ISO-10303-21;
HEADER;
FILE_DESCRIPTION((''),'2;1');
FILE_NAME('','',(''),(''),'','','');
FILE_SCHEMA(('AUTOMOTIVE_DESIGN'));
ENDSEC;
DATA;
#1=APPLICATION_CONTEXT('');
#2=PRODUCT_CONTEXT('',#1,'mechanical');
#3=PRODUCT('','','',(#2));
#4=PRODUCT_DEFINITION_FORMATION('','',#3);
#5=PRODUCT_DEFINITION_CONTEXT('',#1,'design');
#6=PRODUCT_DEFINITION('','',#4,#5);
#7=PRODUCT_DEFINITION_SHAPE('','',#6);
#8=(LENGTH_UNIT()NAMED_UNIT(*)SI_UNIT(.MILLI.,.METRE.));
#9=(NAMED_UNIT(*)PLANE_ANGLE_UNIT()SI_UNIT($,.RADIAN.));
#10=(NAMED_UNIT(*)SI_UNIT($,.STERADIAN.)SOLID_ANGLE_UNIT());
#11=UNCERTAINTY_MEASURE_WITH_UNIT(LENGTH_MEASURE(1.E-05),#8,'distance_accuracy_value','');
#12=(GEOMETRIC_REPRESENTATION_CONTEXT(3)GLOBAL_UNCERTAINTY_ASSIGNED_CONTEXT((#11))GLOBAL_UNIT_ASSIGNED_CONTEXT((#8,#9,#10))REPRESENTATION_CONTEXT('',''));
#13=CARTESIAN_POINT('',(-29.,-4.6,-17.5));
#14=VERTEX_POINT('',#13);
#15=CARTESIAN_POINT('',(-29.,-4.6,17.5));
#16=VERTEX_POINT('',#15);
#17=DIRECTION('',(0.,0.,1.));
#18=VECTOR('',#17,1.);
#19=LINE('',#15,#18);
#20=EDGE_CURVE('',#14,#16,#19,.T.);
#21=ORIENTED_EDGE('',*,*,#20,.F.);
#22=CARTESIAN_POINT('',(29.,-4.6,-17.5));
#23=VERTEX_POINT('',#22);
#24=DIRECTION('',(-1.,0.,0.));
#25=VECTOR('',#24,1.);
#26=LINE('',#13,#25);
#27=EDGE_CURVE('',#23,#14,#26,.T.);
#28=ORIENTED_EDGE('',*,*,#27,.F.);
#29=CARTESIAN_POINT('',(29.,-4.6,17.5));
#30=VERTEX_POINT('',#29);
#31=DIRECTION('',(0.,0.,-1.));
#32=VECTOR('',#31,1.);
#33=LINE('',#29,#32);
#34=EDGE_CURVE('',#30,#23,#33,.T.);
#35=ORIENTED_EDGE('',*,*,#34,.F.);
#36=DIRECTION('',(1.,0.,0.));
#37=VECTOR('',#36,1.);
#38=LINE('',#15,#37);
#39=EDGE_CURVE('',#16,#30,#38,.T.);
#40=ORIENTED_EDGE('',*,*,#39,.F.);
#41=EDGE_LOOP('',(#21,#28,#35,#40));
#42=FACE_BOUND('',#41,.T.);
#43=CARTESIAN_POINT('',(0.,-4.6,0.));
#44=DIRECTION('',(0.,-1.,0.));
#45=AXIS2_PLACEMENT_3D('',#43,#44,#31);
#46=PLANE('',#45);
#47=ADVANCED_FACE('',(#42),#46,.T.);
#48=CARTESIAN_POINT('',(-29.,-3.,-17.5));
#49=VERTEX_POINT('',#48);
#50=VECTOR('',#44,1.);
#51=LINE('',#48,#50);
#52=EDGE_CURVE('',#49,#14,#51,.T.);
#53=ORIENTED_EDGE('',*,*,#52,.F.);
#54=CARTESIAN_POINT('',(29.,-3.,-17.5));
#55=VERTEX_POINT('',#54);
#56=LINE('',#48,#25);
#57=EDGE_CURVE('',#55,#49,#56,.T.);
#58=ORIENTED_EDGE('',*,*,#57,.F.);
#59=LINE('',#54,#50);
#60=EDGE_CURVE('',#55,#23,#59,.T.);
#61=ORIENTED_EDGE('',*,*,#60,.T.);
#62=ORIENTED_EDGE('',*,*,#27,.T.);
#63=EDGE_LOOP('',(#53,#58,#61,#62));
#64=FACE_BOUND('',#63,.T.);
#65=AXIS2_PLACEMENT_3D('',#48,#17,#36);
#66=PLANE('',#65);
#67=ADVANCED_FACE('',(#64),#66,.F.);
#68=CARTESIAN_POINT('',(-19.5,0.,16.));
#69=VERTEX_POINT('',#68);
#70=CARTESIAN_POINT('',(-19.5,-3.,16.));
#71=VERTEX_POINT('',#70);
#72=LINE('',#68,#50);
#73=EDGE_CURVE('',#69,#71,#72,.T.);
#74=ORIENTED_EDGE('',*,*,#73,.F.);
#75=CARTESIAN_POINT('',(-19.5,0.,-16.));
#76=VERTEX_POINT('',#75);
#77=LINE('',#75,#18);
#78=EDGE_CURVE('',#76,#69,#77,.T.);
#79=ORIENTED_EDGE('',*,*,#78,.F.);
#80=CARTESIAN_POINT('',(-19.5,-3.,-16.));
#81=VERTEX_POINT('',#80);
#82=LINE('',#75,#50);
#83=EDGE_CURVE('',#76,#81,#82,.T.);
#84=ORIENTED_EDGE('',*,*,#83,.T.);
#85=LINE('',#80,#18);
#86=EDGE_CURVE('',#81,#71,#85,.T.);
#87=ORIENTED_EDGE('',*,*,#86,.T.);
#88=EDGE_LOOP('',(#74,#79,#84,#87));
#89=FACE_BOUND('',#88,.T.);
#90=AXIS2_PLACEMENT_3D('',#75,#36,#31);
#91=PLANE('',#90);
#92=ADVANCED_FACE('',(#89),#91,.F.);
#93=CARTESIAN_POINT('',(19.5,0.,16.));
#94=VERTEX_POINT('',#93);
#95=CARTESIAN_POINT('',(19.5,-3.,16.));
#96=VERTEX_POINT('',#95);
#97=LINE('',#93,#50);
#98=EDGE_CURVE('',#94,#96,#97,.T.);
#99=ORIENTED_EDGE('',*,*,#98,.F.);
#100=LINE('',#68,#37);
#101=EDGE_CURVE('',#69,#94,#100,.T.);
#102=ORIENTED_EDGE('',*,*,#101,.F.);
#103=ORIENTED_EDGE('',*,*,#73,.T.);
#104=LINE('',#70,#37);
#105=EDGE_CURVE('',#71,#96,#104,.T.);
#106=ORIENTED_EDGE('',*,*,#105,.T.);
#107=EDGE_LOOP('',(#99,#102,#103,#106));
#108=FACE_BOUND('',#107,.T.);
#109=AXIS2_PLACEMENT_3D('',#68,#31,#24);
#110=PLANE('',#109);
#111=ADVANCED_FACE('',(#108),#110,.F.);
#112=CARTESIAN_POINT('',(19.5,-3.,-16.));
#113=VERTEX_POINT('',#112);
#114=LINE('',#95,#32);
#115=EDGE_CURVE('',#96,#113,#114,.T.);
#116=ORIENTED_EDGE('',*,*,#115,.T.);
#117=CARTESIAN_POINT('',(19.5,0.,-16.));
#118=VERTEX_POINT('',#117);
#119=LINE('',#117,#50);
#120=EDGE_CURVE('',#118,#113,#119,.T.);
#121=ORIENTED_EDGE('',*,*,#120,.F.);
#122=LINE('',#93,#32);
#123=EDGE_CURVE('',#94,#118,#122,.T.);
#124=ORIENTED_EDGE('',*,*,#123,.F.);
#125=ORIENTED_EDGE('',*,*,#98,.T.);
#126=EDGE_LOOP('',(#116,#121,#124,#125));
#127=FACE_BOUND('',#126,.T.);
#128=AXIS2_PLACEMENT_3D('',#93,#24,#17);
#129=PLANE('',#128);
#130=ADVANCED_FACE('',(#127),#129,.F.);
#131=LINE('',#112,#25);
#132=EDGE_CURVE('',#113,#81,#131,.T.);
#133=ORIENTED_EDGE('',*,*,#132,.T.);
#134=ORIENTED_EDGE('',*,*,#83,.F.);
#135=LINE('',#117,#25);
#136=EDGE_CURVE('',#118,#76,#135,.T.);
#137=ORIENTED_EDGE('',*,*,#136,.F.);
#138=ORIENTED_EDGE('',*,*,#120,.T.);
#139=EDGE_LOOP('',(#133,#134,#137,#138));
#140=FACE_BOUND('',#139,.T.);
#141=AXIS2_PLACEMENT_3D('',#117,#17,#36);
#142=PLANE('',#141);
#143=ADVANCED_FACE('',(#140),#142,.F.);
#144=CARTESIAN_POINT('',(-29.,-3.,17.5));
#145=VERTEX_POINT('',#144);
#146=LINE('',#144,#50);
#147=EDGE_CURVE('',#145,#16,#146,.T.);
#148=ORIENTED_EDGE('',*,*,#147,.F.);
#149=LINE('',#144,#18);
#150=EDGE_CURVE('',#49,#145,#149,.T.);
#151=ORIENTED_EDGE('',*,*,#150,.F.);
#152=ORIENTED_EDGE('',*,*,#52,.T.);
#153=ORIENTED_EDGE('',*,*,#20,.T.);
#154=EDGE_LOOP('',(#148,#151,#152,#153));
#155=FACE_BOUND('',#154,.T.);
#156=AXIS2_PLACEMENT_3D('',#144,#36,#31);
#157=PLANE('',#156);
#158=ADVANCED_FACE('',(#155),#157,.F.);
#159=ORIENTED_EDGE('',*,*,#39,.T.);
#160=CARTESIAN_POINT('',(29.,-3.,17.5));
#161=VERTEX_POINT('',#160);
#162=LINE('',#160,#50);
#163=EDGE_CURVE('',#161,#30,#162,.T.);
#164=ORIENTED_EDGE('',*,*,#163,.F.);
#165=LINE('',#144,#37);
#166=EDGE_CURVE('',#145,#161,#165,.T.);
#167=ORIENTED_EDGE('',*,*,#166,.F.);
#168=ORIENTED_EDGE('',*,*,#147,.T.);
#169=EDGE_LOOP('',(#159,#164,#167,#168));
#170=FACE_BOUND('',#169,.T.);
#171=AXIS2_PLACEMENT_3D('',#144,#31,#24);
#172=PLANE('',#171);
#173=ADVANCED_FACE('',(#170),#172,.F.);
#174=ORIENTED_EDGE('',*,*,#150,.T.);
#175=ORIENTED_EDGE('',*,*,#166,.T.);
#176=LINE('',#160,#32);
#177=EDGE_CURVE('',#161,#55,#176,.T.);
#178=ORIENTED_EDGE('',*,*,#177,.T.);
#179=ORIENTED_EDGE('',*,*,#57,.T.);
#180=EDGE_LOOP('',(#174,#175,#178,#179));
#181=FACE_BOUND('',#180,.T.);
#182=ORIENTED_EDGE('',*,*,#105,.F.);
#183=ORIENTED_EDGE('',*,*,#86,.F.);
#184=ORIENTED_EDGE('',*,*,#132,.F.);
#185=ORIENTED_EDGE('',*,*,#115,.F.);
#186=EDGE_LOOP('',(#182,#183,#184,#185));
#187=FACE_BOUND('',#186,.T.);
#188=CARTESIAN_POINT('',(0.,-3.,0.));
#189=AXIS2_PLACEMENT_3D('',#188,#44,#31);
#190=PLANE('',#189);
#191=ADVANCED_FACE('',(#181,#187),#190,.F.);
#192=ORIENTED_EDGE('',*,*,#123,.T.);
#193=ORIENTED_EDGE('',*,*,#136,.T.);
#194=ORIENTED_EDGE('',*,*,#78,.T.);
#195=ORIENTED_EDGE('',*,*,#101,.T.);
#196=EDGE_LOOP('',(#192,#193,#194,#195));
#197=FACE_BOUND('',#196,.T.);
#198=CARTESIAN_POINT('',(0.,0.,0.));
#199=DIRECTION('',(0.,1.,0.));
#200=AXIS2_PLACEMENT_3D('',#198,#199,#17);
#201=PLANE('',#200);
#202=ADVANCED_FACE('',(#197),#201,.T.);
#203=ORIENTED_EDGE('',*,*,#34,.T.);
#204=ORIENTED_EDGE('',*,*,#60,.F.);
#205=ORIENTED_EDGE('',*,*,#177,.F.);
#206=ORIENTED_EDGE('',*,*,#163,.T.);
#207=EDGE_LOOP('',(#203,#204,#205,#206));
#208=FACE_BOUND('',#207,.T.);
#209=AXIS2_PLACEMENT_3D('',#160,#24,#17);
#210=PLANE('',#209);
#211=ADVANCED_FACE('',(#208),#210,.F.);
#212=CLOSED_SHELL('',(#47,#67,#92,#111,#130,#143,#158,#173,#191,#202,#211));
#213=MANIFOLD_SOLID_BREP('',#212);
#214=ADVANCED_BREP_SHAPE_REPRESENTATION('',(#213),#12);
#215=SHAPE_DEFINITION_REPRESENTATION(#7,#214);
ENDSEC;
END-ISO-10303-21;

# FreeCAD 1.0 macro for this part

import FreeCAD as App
import Part
import Sketcher

doc = App.newDocument("Part")
body = doc.addObject("PartDesign::Body", "Body")

sketch1 = doc.addObject("Sketcher::SketchObject", "Sketch")
body.addObject(sketch1)
sketch1.AttachmentSupport = (doc.XZ_Plane, [""])
sketch1.MapMode = "FlatFace"
sketch1.AttachmentOffset = App.Placement(App.Vector(0, 0, 3), App.Rotation())
sketch1.addGeometry([
    Part.LineSegment(App.Vector(-20, -16, 0), App.Vector(-20, 16, 0)),
    Part.LineSegment(App.Vector(-20, 16, 0), App.Vector(20, 16, 0)),
    Part.LineSegment(App.Vector(20, 16, 0), App.Vector(20, -16, 0)),
    Part.LineSegment(App.Vector(20, -16, 0), App.Vector(-20, -16, 0)),
], False)
sketch1.addConstraint([
    Sketcher.Constraint("Coincident", 0, 2, 1, 1),
    Sketcher.Constraint("Coincident", 1, 2, 2, 1),
    Sketcher.Constraint("Coincident", 2, 2, 3, 1),
    Sketcher.Constraint("Coincident", 3, 2, 0, 1),
    Sketcher.Constraint("Vertical", 0),
    Sketcher.Constraint("Horizontal", 1),
    Sketcher.Constraint("Vertical", 2),
    Sketcher.Constraint("Horizontal", 3),
    Sketcher.Constraint("Symmetric", 0, 2, 2, 2, -1, 1),
    Sketcher.Constraint("DistanceX", 1, 1, 1, 2, 39.0),
    Sketcher.Constraint("DistanceY", 0, 1, 0, 2, 32.0),
])
pad1 = doc.addObject("PartDesign::Pad", "Pad")
body.addObject(pad1)
pad1.Profile = sketch1
pad1.Length = 3
pad1.Reversed = True

sketch2 = doc.addObject("Sketcher::SketchObject", "Sketch001")
body.addObject(sketch2)
sketch2.AttachmentSupport = (doc.XZ_Plane, [""])
sketch2.MapMode = "FlatFace"
sketch2.AttachmentOffset = App.Placement(App.Vector(0, 0, 4.6), App.Rotation())
sketch2.addGeometry([
    Part.LineSegment(App.Vector(-29, -18, 0), App.Vector(-29, 18, 0)),
    Part.LineSegment(App.Vector(-29, 18, 0), App.Vector(29, 18, 0)),
    Part.LineSegment(App.Vector(29, 18, 0), App.Vector(29, -18, 0)),
    Part.LineSegment(App.Vector(29, -18, 0), App.Vector(-29, -18, 0)),
], False)
sketch2.addConstraint([
    Sketcher.Constraint("Coincident", 0, 2, 1, 1),
    Sketcher.Constraint("Coincident", 1, 2, 2, 1),
    Sketcher.Constraint("Coincident", 2, 2, 3, 1),
    Sketcher.Constraint("Coincident", 3, 2, 0, 1),
    Sketcher.Constraint("Vertical", 0),
    Sketcher.Constraint("Horizontal", 1),
    Sketcher.Constraint("Vertical", 2),
    Sketcher.Constraint("Horizontal", 3),
    Sketcher.Constraint("Symmetric", 0, 2, 2, 2, -1, 1),
    Sketcher.Constraint("DistanceX", 1, 1, 1, 2, 58.0),
    Sketcher.Constraint("DistanceY", 0, 1, 0, 2, 35.0),
])
pad2 = doc.addObject("PartDesign::Pad", "Pad001")
body.addObject(pad2)
pad2.Profile = sketch2
pad2.Length = 1.6
pad2.Reversed = True

doc.recompute()
